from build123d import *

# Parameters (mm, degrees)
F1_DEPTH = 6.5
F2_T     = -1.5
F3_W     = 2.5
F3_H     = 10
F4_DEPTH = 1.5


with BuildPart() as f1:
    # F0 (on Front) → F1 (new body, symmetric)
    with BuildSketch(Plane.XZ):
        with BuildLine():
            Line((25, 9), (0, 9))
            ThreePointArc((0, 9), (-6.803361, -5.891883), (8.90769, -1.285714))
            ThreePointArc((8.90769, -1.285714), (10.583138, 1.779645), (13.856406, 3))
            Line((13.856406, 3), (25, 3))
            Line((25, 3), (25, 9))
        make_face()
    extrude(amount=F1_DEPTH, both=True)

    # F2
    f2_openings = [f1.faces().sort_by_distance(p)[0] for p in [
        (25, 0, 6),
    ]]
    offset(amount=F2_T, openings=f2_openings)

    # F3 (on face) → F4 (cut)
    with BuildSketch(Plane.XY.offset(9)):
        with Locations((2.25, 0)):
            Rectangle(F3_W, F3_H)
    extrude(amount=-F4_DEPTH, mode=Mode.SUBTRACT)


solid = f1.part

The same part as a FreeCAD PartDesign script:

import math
import FreeCAD as App
import Part
import Sketcher


def faces_at(feature, points):
    """Names of the faces that lie closest to the given points."""
    faces = feature.Shape.Faces
    near = lambda p: min(range(len(faces)), key=lambda i: faces[i].distToShape(Part.Vertex(*p))[0])
    return sorted({f"Face{near(p) + 1}" for p in points})


def add_polygon(sketch, points):
    """Adds a closed chain of lines whose ends are joined by coincident constraints."""
    first, n = sketch.GeometryCount, len(points)
    for a, b in zip(points, points[1:] + points[:1]):
        sketch.addGeometry(Part.LineSegment(App.Vector(*a, 0), App.Vector(*b, 0)), False)
    for i in range(n):
        sketch.addConstraint(Sketcher.Constraint("Coincident", first + i, 2, first + (i + 1) % n, 1))

doc = App.newDocument("Part")
body = doc.addObject("PartDesign::Body", "Body")

sketch1 = body.newObject("Sketcher::SketchObject", "Sketch")
sketch1.AttachmentSupport = (doc.getObject("XZ_Plane"), [""])
sketch1.MapMode = "FlatFace"
sketch1.addGeometry(Part.LineSegment(App.Vector(25, 9, 0), App.Vector(0, 9, 0)), False)
sketch1.addGeometry(Part.ArcOfCircle(Part.Circle(App.Vector(0, 0, 0), App.Vector(0, 0, 1), 9), math.radians(90), math.radians(352)), False)
sketch1.addGeometry(Part.ArcOfCircle(Part.Circle(App.Vector(13.9, -2, 0), App.Vector(0, 0, 1), 5), math.radians(90), math.radians(172)), False)
sketch1.addGeometry(Part.LineSegment(App.Vector(13.9, 3, 0), App.Vector(25, 3, 0)), False)
sketch1.addGeometry(Part.LineSegment(App.Vector(25, 3, 0), App.Vector(25, 9, 0)), False)
sketch1.addConstraint(Sketcher.Constraint("Tangent", 0, 2, 1, 1))
sketch1.addConstraint(Sketcher.Constraint("Tangent", 1, 2, 2, 2))
sketch1.addConstraint(Sketcher.Constraint("Tangent", 2, 1, 3, 1))
sketch1.addConstraint(Sketcher.Constraint("Coincident", 3, 2, 4, 1))
sketch1.addConstraint(Sketcher.Constraint("Coincident", 4, 2, 0, 1))
sketch1.addConstraint(Sketcher.Constraint("Horizontal", 0))
sketch1.addConstraint(Sketcher.Constraint("Horizontal", 3))
sketch1.addConstraint(Sketcher.Constraint("Vertical", 4))
sketch1.addConstraint(Sketcher.Constraint("Coincident", 1, 3, -1, 1))
sketch1.addConstraint(Sketcher.Constraint("Radius", 1, 9.0))
sketch1.addConstraint(Sketcher.Constraint("Radius", 2, 4.999999))
sketch1.addConstraint(Sketcher.Constraint("DistanceX", 0, 2, 0, 1, 25.0))
sketch1.addConstraint(Sketcher.Constraint("DistanceY", 4, 1, 4, 2, 6.0))
pad1 = body.newObject("PartDesign::Pad", "Pad")
pad1.Profile = sketch1
pad1.Length = 13
pad1.Midplane = True
doc.recompute()

thickness = body.newObject("PartDesign::Thickness", "Thickness")
thickness.Base = (pad1, faces_at(pad1, [(25, 0, 6)]))
thickness.Value = 1.5
thickness.Reversed = True
thickness.Join = "Arc"

sketch2 = body.newObject("Sketcher::SketchObject", "Sketch001")
sketch2.AttachmentSupport = (doc.getObject("XY_Plane"), [""])
sketch2.MapMode = "FlatFace"
sketch2.AttachmentOffset = App.Placement(App.Vector(0, 0, 9), App.Rotation())
add_polygon(sketch2, [(1, 5), (1, -5), (3.5, -5), (3.5, 5)])
sketch2.addConstraint(Sketcher.Constraint("Vertical", 0))
sketch2.addConstraint(Sketcher.Constraint("Horizontal", 1))
sketch2.addConstraint(Sketcher.Constraint("Vertical", 2))
sketch2.addConstraint(Sketcher.Constraint("Horizontal", 3))
sketch2.addConstraint(Sketcher.Constraint("DistanceY", 0, 2, 0, 1, 10.0))
sketch2.addConstraint(Sketcher.Constraint("DistanceX", 1, 1, 1, 2, 2.5))
sketch2.addConstraint(Sketcher.Constraint("DistanceX", -1, 1, 0, 2, 1.0))
sketch2.addConstraint(Sketcher.Constraint("DistanceY", 0, 2, -1, 1, 5.0))
pocket1 = body.newObject("PartDesign::Pocket", "Pocket")
pocket1.Profile = sketch2
pocket1.Length = 1.5

doc.recompute()
